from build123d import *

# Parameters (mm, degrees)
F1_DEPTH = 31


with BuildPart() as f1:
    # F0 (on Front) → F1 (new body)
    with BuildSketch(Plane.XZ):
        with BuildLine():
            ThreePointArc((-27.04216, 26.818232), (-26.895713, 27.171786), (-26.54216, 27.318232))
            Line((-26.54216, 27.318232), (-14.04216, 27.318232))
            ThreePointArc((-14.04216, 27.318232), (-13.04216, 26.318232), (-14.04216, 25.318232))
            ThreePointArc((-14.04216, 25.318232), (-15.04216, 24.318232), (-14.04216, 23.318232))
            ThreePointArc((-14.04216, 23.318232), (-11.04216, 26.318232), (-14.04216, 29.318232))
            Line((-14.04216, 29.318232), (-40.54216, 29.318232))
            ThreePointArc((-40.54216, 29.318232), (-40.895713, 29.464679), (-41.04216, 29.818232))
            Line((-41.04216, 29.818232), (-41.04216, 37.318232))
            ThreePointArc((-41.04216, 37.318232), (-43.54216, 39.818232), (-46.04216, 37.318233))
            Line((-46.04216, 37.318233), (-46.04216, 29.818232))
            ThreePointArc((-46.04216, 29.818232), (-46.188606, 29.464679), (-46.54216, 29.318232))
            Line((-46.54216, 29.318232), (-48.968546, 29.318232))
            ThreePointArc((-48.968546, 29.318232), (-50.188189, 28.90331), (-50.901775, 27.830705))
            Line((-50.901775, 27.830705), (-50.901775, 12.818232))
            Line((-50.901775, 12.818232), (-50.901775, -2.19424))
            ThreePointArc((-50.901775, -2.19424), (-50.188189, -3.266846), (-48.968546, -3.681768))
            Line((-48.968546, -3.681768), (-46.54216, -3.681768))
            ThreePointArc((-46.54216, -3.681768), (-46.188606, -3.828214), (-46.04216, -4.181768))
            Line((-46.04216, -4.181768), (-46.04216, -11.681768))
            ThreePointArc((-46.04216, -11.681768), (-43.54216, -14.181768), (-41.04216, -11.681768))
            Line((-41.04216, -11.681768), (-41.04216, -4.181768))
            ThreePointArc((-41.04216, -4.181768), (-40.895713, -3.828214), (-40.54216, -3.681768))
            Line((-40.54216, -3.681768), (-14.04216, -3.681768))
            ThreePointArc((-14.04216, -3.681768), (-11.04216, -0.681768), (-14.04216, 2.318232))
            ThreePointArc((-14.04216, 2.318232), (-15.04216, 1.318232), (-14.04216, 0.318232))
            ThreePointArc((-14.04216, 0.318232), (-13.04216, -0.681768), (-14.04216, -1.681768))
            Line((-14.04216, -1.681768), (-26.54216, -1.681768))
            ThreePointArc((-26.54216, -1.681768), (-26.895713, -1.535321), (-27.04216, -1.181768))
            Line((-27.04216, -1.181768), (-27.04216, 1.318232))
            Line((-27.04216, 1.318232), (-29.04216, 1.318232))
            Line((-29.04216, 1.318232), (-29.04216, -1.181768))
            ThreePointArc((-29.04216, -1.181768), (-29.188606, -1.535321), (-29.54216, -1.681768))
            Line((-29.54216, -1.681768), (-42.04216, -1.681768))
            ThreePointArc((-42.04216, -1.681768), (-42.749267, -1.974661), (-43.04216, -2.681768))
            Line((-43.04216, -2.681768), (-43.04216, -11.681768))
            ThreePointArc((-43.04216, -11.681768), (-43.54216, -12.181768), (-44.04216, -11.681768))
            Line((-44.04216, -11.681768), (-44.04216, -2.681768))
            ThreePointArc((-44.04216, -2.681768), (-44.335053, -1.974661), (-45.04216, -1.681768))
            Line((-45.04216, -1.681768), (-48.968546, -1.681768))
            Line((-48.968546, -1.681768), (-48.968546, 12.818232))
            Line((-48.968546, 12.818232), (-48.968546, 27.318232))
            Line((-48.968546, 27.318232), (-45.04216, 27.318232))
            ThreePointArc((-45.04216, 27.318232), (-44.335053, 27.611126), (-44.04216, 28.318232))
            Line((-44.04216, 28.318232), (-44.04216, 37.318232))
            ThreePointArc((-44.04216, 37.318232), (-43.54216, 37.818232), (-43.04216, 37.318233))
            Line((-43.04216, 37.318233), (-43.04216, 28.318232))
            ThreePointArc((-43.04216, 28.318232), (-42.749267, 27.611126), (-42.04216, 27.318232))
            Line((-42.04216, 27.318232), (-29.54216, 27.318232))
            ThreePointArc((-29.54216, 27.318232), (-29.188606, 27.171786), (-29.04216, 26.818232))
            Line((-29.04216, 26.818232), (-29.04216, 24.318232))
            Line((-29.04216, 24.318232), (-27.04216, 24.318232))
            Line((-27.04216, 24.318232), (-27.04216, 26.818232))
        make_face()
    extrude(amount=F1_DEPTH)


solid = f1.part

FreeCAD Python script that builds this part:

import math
import FreeCAD as App
import Part
import Sketcher

doc = App.newDocument("Part")
body = doc.addObject("PartDesign::Body", "Body")

sketch1 = body.newObject("Sketcher::SketchObject", "Sketch")
sketch1.AttachmentSupport = (doc.getObject("XZ_Plane"), [""])
sketch1.MapMode = "FlatFace"
sketch1.addGeometry([
    Part.ArcOfCircle(Part.Circle(App.Vector(-26.54216, 26.818232, 0), App.Vector(0, 0, 1), 0.5), math.radians(89.999957), math.radians(180.000043)),
    Part.LineSegment(App.Vector(-26.54216, 27.318232, 0), App.Vector(-14.04216, 27.318232, 0)),
    Part.ArcOfCircle(Part.Circle(App.Vector(-14.04216, 26.318232, 0), App.Vector(0, 0, 1), 1), math.radians(-90), math.radians(90)),
    Part.ArcOfCircle(Part.Circle(App.Vector(-14.04216, 24.318232, 0), App.Vector(0, 0, 1), 1), math.radians(90), math.radians(270)),
    Part.ArcOfCircle(Part.Circle(App.Vector(-14.04216, 26.318232, 0), App.Vector(0, 0, 1), 3), math.radians(-90), math.radians(90)),
    Part.LineSegment(App.Vector(-14.04216, 29.318232, 0), App.Vector(-40.54216, 29.318232, 0)),
    Part.ArcOfCircle(Part.Circle(App.Vector(-40.542159, 29.818233, 0), App.Vector(0, 0, 1), 0.500001), math.radians(-179.999847), math.radians(-90.000153)),
    Part.LineSegment(App.Vector(-41.04216, 29.818232, 0), App.Vector(-41.04216, 37.318232, 0)),
    Part.ArcOfCircle(Part.Circle(App.Vector(-43.54216, 37.318232, 0), App.Vector(0, 0, 1), 2.5), math.radians(0), math.radians(179.999977)),
    Part.LineSegment(App.Vector(-46.04216, 37.318233, 0), App.Vector(-46.04216, 29.818232, 0)),
    Part.ArcOfCircle(Part.Circle(App.Vector(-46.54216, 29.818232, 0), App.Vector(0, 0, 1), 0.5), math.radians(-90.000043), math.radians(0.000043)),
    Part.LineSegment(App.Vector(-46.54216, 29.318232, 0), App.Vector(-48.968546, 29.318232, 0)),
    Part.ArcOfCircle(Part.Circle(App.Vector(-48.968546, 27.318231, 0), App.Vector(0, 0, 1), 2.000001), math.radians(89.99999), math.radians(165.153123)),
    Part.LineSegment(App.Vector(-50.901775, 27.830705, 0), App.Vector(-50.901775, -2.19424, 0)),
    Part.ArcOfCircle(Part.Circle(App.Vector(-48.968547, -1.681768, 0), App.Vector(0, 0, 1), 2), math.radians(-165.153166), math.radians(-89.999984)),
    Part.LineSegment(App.Vector(-48.968546, -3.681768, 0), App.Vector(-46.54216, -3.681768, 0)),
    Part.ArcOfCircle(Part.Circle(App.Vector(-46.542158, -4.181766, 0), App.Vector(0, 0, 1), 0.499998), math.radians(-0.000238), math.radians(90.000238)),
    Part.LineSegment(App.Vector(-46.04216, -4.181768, 0), App.Vector(-46.04216, -11.681768, 0)),
    Part.ArcOfCircle(Part.Circle(App.Vector(-43.54216, -11.681768, 0), App.Vector(0, 0, 1), 2.5), math.radians(180), math.radians(360)),
    Part.LineSegment(App.Vector(-41.04216, -11.681768, 0), App.Vector(-41.04216, -4.181768, 0)),
    Part.ArcOfCircle(Part.Circle(App.Vector(-40.54216, -4.181768, 0), App.Vector(0, 0, 1), 0.5), math.radians(89.999957), math.radians(180.000043)),
    Part.LineSegment(App.Vector(-40.54216, -3.681768, 0), App.Vector(-14.04216, -3.681768, 0)),
    Part.ArcOfCircle(Part.Circle(App.Vector(-14.04216, -0.681768, 0), App.Vector(0, 0, 1), 3), math.radians(-90), math.radians(90)),
    Part.ArcOfCircle(Part.Circle(App.Vector(-14.04216, 1.318232, 0), App.Vector(0, 0, 1), 1), math.radians(90), math.radians(270)),
    Part.ArcOfCircle(Part.Circle(App.Vector(-14.04216, -0.681768, 0), App.Vector(0, 0, 1), 1), math.radians(-90), math.radians(90)),
    Part.LineSegment(App.Vector(-14.04216, -1.681768, 0), App.Vector(-26.54216, -1.681768, 0)),
    Part.ArcOfCircle(Part.Circle(App.Vector(-26.542159, -1.181767, 0), App.Vector(0, 0, 1), 0.500001), math.radians(-179.999847), math.radians(-90.000153)),
    Part.LineSegment(App.Vector(-27.04216, -1.181768, 0), App.Vector(-27.04216, 1.318232, 0)),
    Part.LineSegment(App.Vector(-27.04216, 1.318232, 0), App.Vector(-29.04216, 1.318232, 0)),
    Part.LineSegment(App.Vector(-29.04216, 1.318232, 0), App.Vector(-29.04216, -1.181768, 0)),
    Part.ArcOfCircle(Part.Circle(App.Vector(-29.54216, -1.181768, 0), App.Vector(0, 0, 1), 0.5), math.radians(-90.000043), math.radians(0.000043)),
    Part.LineSegment(App.Vector(-29.54216, -1.681768, 0), App.Vector(-42.04216, -1.681768, 0)),
    Part.ArcOfCircle(Part.Circle(App.Vector(-42.042161, -2.681767, 0), App.Vector(0, 0, 1), 0.999999), math.radians(89.999957), math.radians(180.000043)),
    Part.LineSegment(App.Vector(-43.04216, -2.681768, 0), App.Vector(-43.04216, -11.681768, 0)),
    Part.ArcOfCircle(Part.Circle(App.Vector(-43.54216, -11.681768, 0), App.Vector(0, 0, 1), 0.5), math.radians(180), math.radians(360)),
    Part.LineSegment(App.Vector(-44.04216, -11.681768, 0), App.Vector(-44.04216, -2.681768, 0)),
    Part.ArcOfCircle(Part.Circle(App.Vector(-45.042159, -2.681767, 0), App.Vector(0, 0, 1), 0.999999), math.radians(-0.000043), math.radians(90.000043)),
    Part.LineSegment(App.Vector(-45.04216, -1.681768, 0), App.Vector(-48.968546, -1.681768, 0)),
    Part.LineSegment(App.Vector(-48.968546, -1.681768, 0), App.Vector(-48.968546, 27.318232, 0)),
    Part.LineSegment(App.Vector(-48.968546, 27.318232, 0), App.Vector(-45.04216, 27.318232, 0)),
    Part.ArcOfCircle(Part.Circle(App.Vector(-45.042161, 28.318233, 0), App.Vector(0, 0, 1), 1.000001), math.radians(-89.999945), math.radians(-0.000055)),
    Part.LineSegment(App.Vector(-44.04216, 28.318232, 0), App.Vector(-44.04216, 37.318232, 0)),
    Part.ArcOfCircle(Part.Circle(App.Vector(-43.54216, 37.318232, 0), App.Vector(0, 0, 1), 0.5), math.radians(0.000115), math.radians(180)),
    Part.LineSegment(App.Vector(-43.04216, 37.318233, 0), App.Vector(-43.04216, 28.318232, 0)),
    Part.ArcOfCircle(Part.Circle(App.Vector(-42.042159, 28.318233, 0), App.Vector(0, 0, 1), 1.000001), math.radians(-179.999945), math.radians(-90.000055)),
    Part.LineSegment(App.Vector(-42.04216, 27.318232, 0), App.Vector(-29.54216, 27.318232, 0)),
    Part.ArcOfCircle(Part.Circle(App.Vector(-29.542158, 26.818234, 0), App.Vector(0, 0, 1), 0.499998), math.radians(-0.000238), math.radians(90.000238)),
    Part.LineSegment(App.Vector(-29.04216, 26.818232, 0), App.Vector(-29.04216, 24.318232, 0)),
    Part.LineSegment(App.Vector(-29.04216, 24.318232, 0), App.Vector(-27.04216, 24.318232, 0)),
    Part.LineSegment(App.Vector(-27.04216, 24.318232, 0), App.Vector(-27.04216, 26.818232, 0)),
], False)
sketch1.addConstraint([
    Sketcher.Constraint("Tangent", 0, 1, 1, 1),
    Sketcher.Constraint("Tangent", 1, 2, 2, 2),
    Sketcher.Constraint("Tangent", 2, 1, 3, 1),
    Sketcher.Constraint("Tangent", 3, 2, 4, 1),
    Sketcher.Constraint("Tangent", 4, 2, 5, 1),
    Sketcher.Constraint("Coincident", 5, 2, 6, 2),
    Sketcher.Constraint("Coincident", 6, 1, 7, 1),
    Sketcher.Constraint("Tangent", 7, 2, 8, 1),
    Sketcher.Constraint("Tangent", 8, 2, 9, 1),
    Sketcher.Constraint("Tangent", 9, 2, 10, 2),
    Sketcher.Constraint("Tangent", 10, 1, 11, 1),
    Sketcher.Constraint("Tangent", 11, 2, 12, 1),
    Sketcher.Constraint("Coincident", 12, 2, 13, 1),
    Sketcher.Constraint("Coincident", 13, 2, 14, 1),
    Sketcher.Constraint("Tangent", 14, 2, 15, 1),
    Sketcher.Constraint("Coincident", 15, 2, 16, 2),
    Sketcher.Constraint("Coincident", 16, 1, 17, 1),
    Sketcher.Constraint("Tangent", 17, 2, 18, 1),
    Sketcher.Constraint("Tangent", 18, 2, 19, 1),
    Sketcher.Constraint("Tangent", 19, 2, 20, 2),
    Sketcher.Constraint("Tangent", 20, 1, 21, 1),
    Sketcher.Constraint("Tangent", 21, 2, 22, 1),
    Sketcher.Constraint("Tangent", 22, 2, 23, 1),
    Sketcher.Constraint("Tangent", 23, 2, 24, 2),
    Sketcher.Constraint("Tangent", 24, 1, 25, 1),
    Sketcher.Constraint("Coincident", 25, 2, 26, 2),
    Sketcher.Constraint("Coincident", 26, 1, 27, 1),
    Sketcher.Constraint("Coincident", 27, 2, 28, 1),
    Sketcher.Constraint("Coincident", 28, 2, 29, 1),
    Sketcher.Constraint("Tangent", 29, 2, 30, 2),
    Sketcher.Constraint("Tangent", 30, 1, 31, 1),
    Sketcher.Constraint("Tangent", 31, 2, 32, 1),
    Sketcher.Constraint("Tangent", 32, 2, 33, 1),
    Sketcher.Constraint("Tangent", 33, 2, 34, 2),
    Sketcher.Constraint("Tangent", 34, 1, 35, 1),
    Sketcher.Constraint("Tangent", 35, 2, 36, 1),
    Sketcher.Constraint("Tangent", 36, 2, 37, 1),
    Sketcher.Constraint("Coincident", 37, 2, 38, 1),
    Sketcher.Constraint("Coincident", 38, 2, 39, 1),
    Sketcher.Constraint("Tangent", 39, 2, 40, 1),
    Sketcher.Constraint("Tangent", 40, 2, 41, 1),
    Sketcher.Constraint("Tangent", 41, 2, 42, 2),
    Sketcher.Constraint("Tangent", 42, 1, 43, 1),
    Sketcher.Constraint("Tangent", 43, 2, 44, 1),
    Sketcher.Constraint("Tangent", 44, 2, 45, 1),
    Sketcher.Constraint("Coincident", 45, 2, 46, 2),
    Sketcher.Constraint("Coincident", 46, 1, 47, 1),
    Sketcher.Constraint("Coincident", 47, 2, 48, 1),
    Sketcher.Constraint("Coincident", 48, 2, 49, 1),
    Sketcher.Constraint("Tangent", 49, 2, 0, 2),
    Sketcher.Constraint("Horizontal", 1),
    Sketcher.Constraint("Horizontal", 5),
    Sketcher.Constraint("Vertical", 7),
    Sketcher.Constraint("Vertical", 9),
    Sketcher.Constraint("Horizontal", 11),
    Sketcher.Constraint("Vertical", 13),
    Sketcher.Constraint("Horizontal", 15),
    Sketcher.Constraint("Vertical", 17),
    Sketcher.Constraint("Vertical", 19),
    Sketcher.Constraint("Horizontal", 21),
    Sketcher.Constraint("Horizontal", 25),
    Sketcher.Constraint("Vertical", 27),
    Sketcher.Constraint("Horizontal", 28),
    Sketcher.Constraint("Vertical", 29),
    Sketcher.Constraint("Horizontal", 31),
    Sketcher.Constraint("Vertical", 33),
    Sketcher.Constraint("Vertical", 35),
    Sketcher.Constraint("Horizontal", 37),
    Sketcher.Constraint("Vertical", 38),
    Sketcher.Constraint("Horizontal", 39),
    Sketcher.Constraint("Vertical", 41),
    Sketcher.Constraint("Vertical", 43),
    Sketcher.Constraint("Horizontal", 45),
    Sketcher.Constraint("Vertical", 47),
    Sketcher.Constraint("Horizontal", 48),
    Sketcher.Constraint("Vertical", 49),
    Sketcher.Constraint("Coincident", 4, 3, 2, 3),
    Sketcher.Constraint("Coincident", 24, 3, 22, 3),
    Sketcher.Constraint("Coincident", 34, 3, 18, 3),
    Sketcher.Constraint("Coincident", 42, 3, 8, 3),
    Sketcher.Constraint("Coincident", 37, 2, 14, 3),
    Sketcher.Constraint("Coincident", 38, 2, 12, 3),
    Sketcher.Constraint("Equal", 2, 3),
    Sketcher.Constraint("Equal", 0, 6),
    Sketcher.Constraint("Equal", 6, 10),
    Sketcher.Constraint("Equal", 12, 14),
    Sketcher.Constraint("Equal", 10, 16),
    Sketcher.Constraint("Equal", 8, 18),
    Sketcher.Constraint("Equal", 16, 20),
    Sketcher.Constraint("Equal", 4, 22),
    Sketcher.Constraint("Equal", 3, 23),
    Sketcher.Constraint("Equal", 20, 26),
    Sketcher.Constraint("Equal", 26, 30),
    Sketcher.Constraint("Equal", 24, 32),
    Sketcher.Constraint("Equal", 30, 34),
    Sketcher.Constraint("Equal", 32, 36),
    Sketcher.Constraint("Equal", 36, 40),
    Sketcher.Constraint("Equal", 34, 42),
    Sketcher.Constraint("Equal", 40, 44),
    Sketcher.Constraint("Equal", 30, 46),
    Sketcher.Constraint("Horizontal", 6, 3, 10, 3),
    Sketcher.Constraint("Horizontal", 16, 3, 20, 3),
    Sketcher.Constraint("Horizontal", 26, 3, 30, 3),
    Sketcher.Constraint("Horizontal", 32, 3, 36, 3),
    Sketcher.Constraint("Horizontal", 40, 3, 44, 3),
    Sketcher.Constraint("Horizontal", 10, 3, 6, 1),
    Sketcher.Constraint("Horizontal", 20, 3, 16, 1),
    Sketcher.Constraint("Horizontal", 30, 3, 26, 1),
    Sketcher.Constraint("Horizontal", 23, 3, 27, 2),
    Sketcher.Constraint("Horizontal", 0, 3, 46, 1),
    Sketcher.Constraint("Horizontal", 3, 3, 47, 2),
    Sketcher.Constraint("Vertical", 2, 3, 3, 3),
    Sketcher.Constraint("Vertical", 10, 3, 16, 3),
    Sketcher.Constraint("Vertical", 4, 3, 22, 3),
    Sketcher.Constraint("Vertical", 22, 3, 23, 3),
    Sketcher.Constraint("Vertical", 0, 3, 26, 3),
    Sketcher.Constraint("Vertical", 30, 3, 46, 3),
    Sketcher.Constraint("Vertical", 20, 3, 5, 2),
    Sketcher.Constraint("Vertical", 10, 1, 15, 2),
    Sketcher.Constraint("Vertical", 0, 1, 25, 2),
    Sketcher.Constraint("Vertical", 30, 1, 45, 2),
    Sketcher.Constraint("Equal", 25, 31),
    Sketcher.Constraint("Equal", 9, 17),
    Sketcher.Constraint("Radius", 2, 1.0),
    Sketcher.Constraint("Radius", 0, 0.5),
    Sketcher.Constraint("Radius", 8, 2.5),
    Sketcher.Constraint("DistanceX", 28, 2, 28, 1, 2.0),
    Sketcher.Constraint("DistanceY", 33, 2, 33, 1, 9.0),
    Sketcher.Constraint("DistanceY", 38, 1, 38, 2, 29.0),
    Sketcher.Constraint("DistanceX", 1, 1, 1, 2, 12.5),
    Sketcher.Constraint("DistanceX", 11, 2, 11, 1, 2.426386),
    Sketcher.Constraint("DistanceY", 13, 2, 13, 1, 30.024945),
    Sketcher.Constraint("DistanceX", 0, 3, -1, 1, 26.54216),
    Sketcher.Constraint("DistanceY", -1, 1, 2, 3, 26.318232),
])
pad1 = body.newObject("PartDesign::Pad", "Pad")
pad1.Profile = sketch1
pad1.Length = 31

doc.recompute()
